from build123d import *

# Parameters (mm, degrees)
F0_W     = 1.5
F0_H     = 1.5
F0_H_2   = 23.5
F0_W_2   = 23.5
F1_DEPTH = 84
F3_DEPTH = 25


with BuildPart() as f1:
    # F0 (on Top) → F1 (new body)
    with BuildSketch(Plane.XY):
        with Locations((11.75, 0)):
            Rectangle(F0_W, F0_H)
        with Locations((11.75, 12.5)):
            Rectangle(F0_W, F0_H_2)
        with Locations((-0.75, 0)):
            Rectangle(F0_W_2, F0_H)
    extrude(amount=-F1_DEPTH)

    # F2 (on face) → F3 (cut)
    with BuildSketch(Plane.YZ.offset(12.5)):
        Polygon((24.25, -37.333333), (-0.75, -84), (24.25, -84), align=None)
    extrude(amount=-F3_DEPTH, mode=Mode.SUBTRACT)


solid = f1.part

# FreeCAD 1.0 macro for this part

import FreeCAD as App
import Part
import Sketcher

doc = App.newDocument("Part")
body = doc.addObject("PartDesign::Body", "Body")

sketch1 = body.newObject("Sketcher::SketchObject", "Sketch")
sketch1.AttachmentSupport = (doc.getObject("XY_Plane"), [""])
sketch1.MapMode = "FlatFace"
sketch1.addGeometry(Part.LineSegment(App.Vector(12.5, -0.8, 0), App.Vector(12.5, 24.2, 0)), False)
sketch1.addGeometry(Part.LineSegment(App.Vector(12.5, 24.2, 0), App.Vector(11, 24.2, 0)), False)
sketch1.addGeometry(Part.LineSegment(App.Vector(11, 24.2, 0), App.Vector(11, 0.8, 0)), False)
sketch1.addGeometry(Part.LineSegment(App.Vector(11, 0.8, 0), App.Vector(-12.5, 0.8, 0)), False)
sketch1.addGeometry(Part.LineSegment(App.Vector(-12.5, 0.8, 0), App.Vector(-12.5, -0.8, 0)), False)
sketch1.addGeometry(Part.LineSegment(App.Vector(-12.5, -0.8, 0), App.Vector(12.5, -0.8, 0)), False)
sketch1.addConstraint(Sketcher.Constraint("Coincident", 0, 2, 1, 1))
sketch1.addConstraint(Sketcher.Constraint("Coincident", 1, 2, 2, 1))
sketch1.addConstraint(Sketcher.Constraint("Coincident", 2, 2, 3, 1))
sketch1.addConstraint(Sketcher.Constraint("Coincident", 3, 2, 4, 1))
sketch1.addConstraint(Sketcher.Constraint("Coincident", 4, 2, 5, 1))
sketch1.addConstraint(Sketcher.Constraint("Coincident", 5, 2, 0, 1))
sketch1.addConstraint(Sketcher.Constraint("Vertical", 0))
sketch1.addConstraint(Sketcher.Constraint("Horizontal", 1))
sketch1.addConstraint(Sketcher.Constraint("Vertical", 2))
sketch1.addConstraint(Sketcher.Constraint("Horizontal", 3))
sketch1.addConstraint(Sketcher.Constraint("Vertical", 4))
sketch1.addConstraint(Sketcher.Constraint("Horizontal", 5))
sketch1.addConstraint(Sketcher.Constraint("Symmetric", 3, 2, 5, 2, -1, 1))
sketch1.addConstraint(Sketcher.Constraint("Equal", 5, 0))
sketch1.addConstraint(Sketcher.Constraint("Equal", 3, 2))
sketch1.addConstraint(Sketcher.Constraint("DistanceX", 5, 1, 5, 2, 25.0))
sketch1.addConstraint(Sketcher.Constraint("DistanceX", 1, 2, 1, 1, 1.5))
pad1 = body.newObject("PartDesign::Pad", "Pad")
pad1.Profile = sketch1
pad1.Length = 84
pad1.Reversed = True

sketch2 = body.newObject("Sketcher::SketchObject", "Sketch001")
sketch2.AttachmentSupport = (doc.getObject("YZ_Plane"), [""])
sketch2.MapMode = "FlatFace"
sketch2.AttachmentOffset = App.Placement(App.Vector(0, 0, 12.5), App.Rotation())
sketch2.addGeometry(Part.LineSegment(App.Vector(24, -37, 0), App.Vector(-1, -84, 0)), False)
sketch2.addGeometry(Part.LineSegment(App.Vector(-1, -84, 0), App.Vector(24, -84, 0)), False)
sketch2.addGeometry(Part.LineSegment(App.Vector(24, -84, 0), App.Vector(24, -37, 0)), False)
sketch2.addConstraint(Sketcher.Constraint("Coincident", 0, 2, 1, 1))
sketch2.addConstraint(Sketcher.Constraint("Coincident", 1, 2, 2, 1))
sketch2.addConstraint(Sketcher.Constraint("Coincident", 2, 2, 0, 1))
sketch2.addConstraint(Sketcher.Constraint("Horizontal", 1))
sketch2.addConstraint(Sketcher.Constraint("Vertical", 2))
sketch2.addConstraint(Sketcher.Constraint("DistanceX", 1, 1, 1, 2, 25.0))
sketch2.addConstraint(Sketcher.Constraint("DistanceY", 0, 2, -1, 1, 84.0))
sketch2.addConstraint(Sketcher.Constraint("DistanceX", 0, 2, -1, 1, 0.75))
sketch2.addConstraint(Sketcher.Constraint("DistanceY", 2, 1, 2, 2, 46.666667))
pocket1 = body.newObject("PartDesign::Pocket", "Pocket")
pocket1.Profile = sketch2
pocket1.Length = 25

doc.recompute()
